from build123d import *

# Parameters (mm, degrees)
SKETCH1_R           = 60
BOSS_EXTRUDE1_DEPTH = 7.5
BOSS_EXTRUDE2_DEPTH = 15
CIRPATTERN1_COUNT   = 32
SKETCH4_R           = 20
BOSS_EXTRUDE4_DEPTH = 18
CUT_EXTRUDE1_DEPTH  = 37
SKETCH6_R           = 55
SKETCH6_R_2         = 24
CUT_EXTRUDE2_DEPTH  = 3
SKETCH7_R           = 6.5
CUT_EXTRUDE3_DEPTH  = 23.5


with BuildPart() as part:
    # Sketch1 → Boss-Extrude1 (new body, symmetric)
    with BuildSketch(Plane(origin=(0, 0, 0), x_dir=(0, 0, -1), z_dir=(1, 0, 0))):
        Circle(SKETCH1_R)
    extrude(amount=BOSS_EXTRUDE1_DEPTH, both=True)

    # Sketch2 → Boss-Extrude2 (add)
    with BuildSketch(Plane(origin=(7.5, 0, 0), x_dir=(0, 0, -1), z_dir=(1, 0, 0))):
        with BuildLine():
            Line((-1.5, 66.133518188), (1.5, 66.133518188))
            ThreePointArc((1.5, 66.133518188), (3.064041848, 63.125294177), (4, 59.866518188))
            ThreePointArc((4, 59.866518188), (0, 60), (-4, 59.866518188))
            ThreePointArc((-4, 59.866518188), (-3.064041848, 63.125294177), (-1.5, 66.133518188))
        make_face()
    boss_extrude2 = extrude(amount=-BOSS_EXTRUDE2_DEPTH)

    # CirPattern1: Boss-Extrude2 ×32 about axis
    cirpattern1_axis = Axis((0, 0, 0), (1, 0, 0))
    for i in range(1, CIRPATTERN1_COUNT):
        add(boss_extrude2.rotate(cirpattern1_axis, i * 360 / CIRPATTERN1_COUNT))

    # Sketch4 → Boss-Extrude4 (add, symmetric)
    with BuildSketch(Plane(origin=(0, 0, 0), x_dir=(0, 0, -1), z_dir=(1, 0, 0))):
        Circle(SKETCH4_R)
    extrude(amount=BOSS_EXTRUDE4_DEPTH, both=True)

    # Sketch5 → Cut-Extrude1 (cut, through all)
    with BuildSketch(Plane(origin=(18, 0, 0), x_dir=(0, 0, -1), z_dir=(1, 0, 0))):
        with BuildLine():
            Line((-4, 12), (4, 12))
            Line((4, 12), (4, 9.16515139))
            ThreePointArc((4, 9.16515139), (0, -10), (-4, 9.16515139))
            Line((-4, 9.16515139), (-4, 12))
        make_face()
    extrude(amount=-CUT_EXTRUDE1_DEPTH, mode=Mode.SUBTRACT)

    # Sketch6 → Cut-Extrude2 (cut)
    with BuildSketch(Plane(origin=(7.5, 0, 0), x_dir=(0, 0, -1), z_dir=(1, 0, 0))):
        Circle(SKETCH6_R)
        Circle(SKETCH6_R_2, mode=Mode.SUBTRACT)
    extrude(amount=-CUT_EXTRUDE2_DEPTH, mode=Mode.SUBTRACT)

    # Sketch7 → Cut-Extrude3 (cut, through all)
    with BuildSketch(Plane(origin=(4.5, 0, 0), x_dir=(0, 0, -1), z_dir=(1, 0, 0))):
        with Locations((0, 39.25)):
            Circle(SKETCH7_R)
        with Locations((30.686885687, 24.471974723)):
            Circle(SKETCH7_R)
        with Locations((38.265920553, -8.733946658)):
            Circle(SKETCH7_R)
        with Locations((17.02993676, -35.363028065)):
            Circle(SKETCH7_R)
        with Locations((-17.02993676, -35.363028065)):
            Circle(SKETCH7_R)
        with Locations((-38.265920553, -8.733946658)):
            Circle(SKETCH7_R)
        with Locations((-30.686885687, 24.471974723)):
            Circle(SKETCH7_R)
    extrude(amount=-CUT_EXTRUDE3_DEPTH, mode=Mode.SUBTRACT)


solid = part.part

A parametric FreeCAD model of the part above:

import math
import FreeCAD as App
import Part
import Sketcher

V = App.Vector

doc = App.newDocument("Part")
params = doc.addObject("Spreadsheet::Sheet", "Params")
for row, (alias, value) in enumerate([
    ("sketch1_diameter", "120 mm"),
    ("pad1_length", "15 mm"),
    ("sketch2_radius", "17 mm"),
    ("sketch2_radius2", "60 mm"),
    ("sketch2_height", "3 mm"),
    ("pad2_length", "15 mm"),
    ("sketch3_diameter", "40 mm"),
    ("pad3_length", "36 mm"),
    ("sketch4_radius", "10 mm"),
    ("sketch4_height", "8 mm"),
    ("sketch5_diameter", "110 mm"),
    ("sketch5_diameter2", "48 mm"),
    ("pocket2_length", "3 mm"),
    ("sketch6_diameter", "13 mm"),
], start=1):
    params.set(f"A{row}", alias)
    params.set(f"B{row}", "=" + value)
    params.setAlias(f"B{row}", alias)

body = doc.addObject("PartDesign::Body", "Body")

# Sketch on YZ plane
sketch1 = doc.addObject("Sketcher::SketchObject", "Sketch")
body.addObject(sketch1)
sketch1.AttachmentSupport = (doc.YZ_Plane, [""])
sketch1.MapMode = "FlatFace"
sketch1.addGeometry(Part.Circle(V(0, 0, 0), V(0, 0, 1), 60), False)
sketch1.addConstraint(Sketcher.Constraint("Coincident", 0, 3, -1, 1))
sketch1.addConstraint(Sketcher.Constraint("Diameter", 0, 120.0))
sketch1.setExpression("Constraints[1]", "Params.sketch1_diameter")
pad1 = doc.addObject("PartDesign::Pad", "Pad")
body.addObject(pad1)
pad1.Profile = sketch1
pad1.setExpression("Length", "Params.pad1_length")
pad1.Midplane = True

# Sketch on YZ plane
sketch2 = doc.addObject("Sketcher::SketchObject", "Sketch001")
body.addObject(sketch2)
sketch2.AttachmentSupport = (doc.YZ_Plane, [""])
sketch2.MapMode = "FlatFace"
sketch2.AttachmentOffset = App.Placement(V(0, 0, 7.5), App.Rotation())
sketch2.addGeometry(Part.LineSegment(V(66.1, -1.5, 0), V(66.1, 1.5, 0)), False)
sketch2.addGeometry(Part.ArcOfCircle(Part.Circle(V(56.8, -12.7, 0), V(0, 0, 1), 17), math.radians(57), math.radians(80)), False)
sketch2.addGeometry(Part.ArcOfCircle(Part.Circle(V(0, 0, 0), V(0, 0, 1), 60), math.radians(-3.82), math.radians(3.82)), False)
sketch2.addGeometry(Part.ArcOfCircle(Part.Circle(V(56.8, 12.7, 0), V(0, 0, 1), 17), math.radians(-80), math.radians(-57)), False)
sketch2.addConstraint(Sketcher.Constraint("Coincident", 0, 2, 1, 1))
sketch2.addConstraint(Sketcher.Constraint("Coincident", 1, 2, 2, 2))
sketch2.addConstraint(Sketcher.Constraint("Coincident", 2, 1, 3, 1))
sketch2.addConstraint(Sketcher.Constraint("Coincident", 3, 2, 0, 1))
sketch2.addConstraint(Sketcher.Constraint("Vertical", 0))
sketch2.addConstraint(Sketcher.Constraint("Coincident", 2, 3, -1, 1))
sketch2.addConstraint(Sketcher.Constraint("Equal", 1, 3))
sketch2.addConstraint(Sketcher.Constraint("Symmetric", 1, 3, 3, 3, -1))
sketch2.addConstraint(Sketcher.Constraint("Radius", 1, 17.0))
sketch2.addConstraint(Sketcher.Constraint("Radius", 2, 60.0))
sketch2.addConstraint(Sketcher.Constraint("DistanceY", 0, 1, 0, 2, 3.0))
sketch2.addConstraint(Sketcher.Constraint("DistanceY", -1, 1, 1, 2, 4.0))
sketch2.addConstraint(Sketcher.Constraint("DistanceX", 1, 2, 0, 2, 6.267))
sketch2.setExpression("Constraints[8]", "Params.sketch2_radius")
sketch2.setExpression("Constraints[9]", "Params.sketch2_radius2")
sketch2.setExpression("Constraints[10]", "Params.sketch2_height")
pad2 = doc.addObject("PartDesign::Pad", "Pad001")
body.addObject(pad2)
pad2.Profile = sketch2
pad2.setExpression("Length", "Params.pad2_length")
pad2.Reversed = True
doc.recompute()

polarpattern = doc.addObject("PartDesign::PolarPattern", "PolarPattern")
body.addObject(polarpattern)
polarpattern.Originals = [pad2]
polarpattern.Axis = (doc.X_Axis, [""])
polarpattern.Angle = 360
polarpattern.Occurrences = 32
body.Tip = polarpattern

# Sketch on YZ plane
sketch3 = doc.addObject("Sketcher::SketchObject", "Sketch002")
body.addObject(sketch3)
sketch3.AttachmentSupport = (doc.YZ_Plane, [""])
sketch3.MapMode = "FlatFace"
sketch3.addGeometry(Part.Circle(V(0, 0, 0), V(0, 0, 1), 20), False)
sketch3.addConstraint(Sketcher.Constraint("Coincident", 0, 3, -1, 1))
sketch3.addConstraint(Sketcher.Constraint("Diameter", 0, 40.0))
sketch3.setExpression("Constraints[1]", "Params.sketch3_diameter")
pad3 = doc.addObject("PartDesign::Pad", "Pad002")
body.addObject(pad3)
pad3.Profile = sketch3
pad3.setExpression("Length", "Params.pad3_length")
pad3.Midplane = True

# Sketch on YZ plane
sketch4 = doc.addObject("Sketcher::SketchObject", "Sketch003")
body.addObject(sketch4)
sketch4.AttachmentSupport = (doc.YZ_Plane, [""])
sketch4.MapMode = "FlatFace"
sketch4.AttachmentOffset = App.Placement(V(0, 0, 18), App.Rotation())
sketch4.addGeometry(Part.LineSegment(V(12, -4, 0), V(12, 4, 0)), False)
sketch4.addGeometry(Part.LineSegment(V(12, 4, 0), V(9.2, 4, 0)), False)
sketch4.addGeometry(Part.ArcOfCircle(Part.Circle(V(0, 0, 0), V(0, 0, 1), 10), math.radians(24), math.radians(336)), False)
sketch4.addGeometry(Part.LineSegment(V(9.2, -4, 0), V(12, -4, 0)), False)
sketch4.addConstraint(Sketcher.Constraint("Coincident", 0, 2, 1, 1))
sketch4.addConstraint(Sketcher.Constraint("Coincident", 1, 2, 2, 1))
sketch4.addConstraint(Sketcher.Constraint("Coincident", 2, 2, 3, 1))
sketch4.addConstraint(Sketcher.Constraint("Coincident", 3, 2, 0, 1))
sketch4.addConstraint(Sketcher.Constraint("Vertical", 0))
sketch4.addConstraint(Sketcher.Constraint("Horizontal", 1))
sketch4.addConstraint(Sketcher.Constraint("Horizontal", 3))
sketch4.addConstraint(Sketcher.Constraint("Coincident", 2, 3, -1, 1))
sketch4.addConstraint(Sketcher.Constraint("Vertical", 1, 2, 2, 2))
sketch4.addConstraint(Sketcher.Constraint("Radius", 2, 10.0))
sketch4.addConstraint(Sketcher.Constraint("DistanceY", 0, 1, 0, 2, 8.0))
sketch4.addConstraint(Sketcher.Constraint("DistanceX", -1, 1, 0, 2, 12.0))
sketch4.setExpression("Constraints[9]", "Params.sketch4_radius")
sketch4.setExpression("Constraints[10]", "Params.sketch4_height")
pocket1 = doc.addObject("PartDesign::Pocket", "Pocket")
body.addObject(pocket1)
pocket1.Profile = sketch4
pocket1.Type = "ThroughAll"

# Sketch on YZ plane
sketch5 = doc.addObject("Sketcher::SketchObject", "Sketch004")
body.addObject(sketch5)
sketch5.AttachmentSupport = (doc.YZ_Plane, [""])
sketch5.MapMode = "FlatFace"
sketch5.AttachmentOffset = App.Placement(V(0, 0, 7.5), App.Rotation())
sketch5.addGeometry(Part.Circle(V(0, 0, 0), V(0, 0, 1), 55), False)
sketch5.addGeometry(Part.Circle(V(0, 0, 0), V(0, 0, 1), 24), False)
sketch5.addConstraint(Sketcher.Constraint("Coincident", 0, 3, -1, 1))
sketch5.addConstraint(Sketcher.Constraint("Coincident", 1, 3, -1, 1))
sketch5.addConstraint(Sketcher.Constraint("Diameter", 0, 110.0))
sketch5.addConstraint(Sketcher.Constraint("Diameter", 1, 48.0))
sketch5.setExpression("Constraints[2]", "Params.sketch5_diameter")
sketch5.setExpression("Constraints[3]", "Params.sketch5_diameter2")
pocket2 = doc.addObject("PartDesign::Pocket", "Pocket001")
body.addObject(pocket2)
pocket2.Profile = sketch5
pocket2.setExpression("Length", "Params.pocket2_length")

# Sketch on YZ plane
sketch6 = doc.addObject("Sketcher::SketchObject", "Sketch005")
body.addObject(sketch6)
sketch6.AttachmentSupport = (doc.YZ_Plane, [""])
sketch6.MapMode = "FlatFace"
sketch6.AttachmentOffset = App.Placement(V(0, 0, 4.5), App.Rotation())
sketch6.addGeometry(Part.Circle(V(39, 0, 0), V(0, 0, 1), 6), False)
sketch6.addGeometry(Part.Circle(V(24, -31, 0), V(0, 0, 1), 6), False)
sketch6.addGeometry(Part.Circle(V(-9, -38, 0), V(0, 0, 1), 6), False)
sketch6.addGeometry(Part.Circle(V(-35, -17, 0), V(0, 0, 1), 6), False)
sketch6.addGeometry(Part.Circle(V(-35, 17, 0), V(0, 0, 1), 6), False)
sketch6.addGeometry(Part.Circle(V(-9, 38, 0), V(0, 0, 1), 6), False)
sketch6.addGeometry(Part.Circle(V(24, 31, 0), V(0, 0, 1), 6), False)
sketch6.addConstraint(Sketcher.Constraint("Equal", 0, 1))
sketch6.addConstraint(Sketcher.Constraint("Equal", 1, 2))
sketch6.addConstraint(Sketcher.Constraint("Equal", 2, 3))
sketch6.addConstraint(Sketcher.Constraint("Equal", 3, 4))
sketch6.addConstraint(Sketcher.Constraint("Equal", 4, 5))
sketch6.addConstraint(Sketcher.Constraint("Equal", 5, 6))
sketch6.addConstraint(Sketcher.Constraint("Symmetric", 3, 3, 4, 3, -1))
sketch6.addConstraint(Sketcher.Constraint("Symmetric", 2, 3, 5, 3, -1))
sketch6.addConstraint(Sketcher.Constraint("Symmetric", 1, 3, 6, 3, -1))
sketch6.addConstraint(Sketcher.Constraint("PointOnObject", 0, 3, -1))
sketch6.addConstraint(Sketcher.Constraint("Diameter", 0, 13.0))
sketch6.addConstraint(Sketcher.Constraint("DistanceX", -1, 1, 0, 3, 39.25))
sketch6.addConstraint(Sketcher.Constraint("DistanceY", 2, 3, -1, 1, 38.265921))
sketch6.addConstraint(Sketcher.Constraint("DistanceX", 3, 3, -1, 1, 35.363028))
sketch6.addConstraint(Sketcher.Constraint("DistanceX", 2, 3, 1, 3, 33.205921))
sketch6.addConstraint(Sketcher.Constraint("DistanceX", 3, 3, 2, 3, 26.629081))
sketch6.addConstraint(Sketcher.Constraint("DistanceY", 1, 3, 3, 3, 13.656949))
sketch6.addConstraint(Sketcher.Constraint("DistanceY", 1, 3, 6, 3, 61.373771))
sketch6.setExpression("Constraints[10]", "Params.sketch6_diameter")
pocket3 = doc.addObject("PartDesign::Pocket", "Pocket002")
body.addObject(pocket3)
pocket3.Profile = sketch6
pocket3.Type = "ThroughAll"

doc.recompute()
